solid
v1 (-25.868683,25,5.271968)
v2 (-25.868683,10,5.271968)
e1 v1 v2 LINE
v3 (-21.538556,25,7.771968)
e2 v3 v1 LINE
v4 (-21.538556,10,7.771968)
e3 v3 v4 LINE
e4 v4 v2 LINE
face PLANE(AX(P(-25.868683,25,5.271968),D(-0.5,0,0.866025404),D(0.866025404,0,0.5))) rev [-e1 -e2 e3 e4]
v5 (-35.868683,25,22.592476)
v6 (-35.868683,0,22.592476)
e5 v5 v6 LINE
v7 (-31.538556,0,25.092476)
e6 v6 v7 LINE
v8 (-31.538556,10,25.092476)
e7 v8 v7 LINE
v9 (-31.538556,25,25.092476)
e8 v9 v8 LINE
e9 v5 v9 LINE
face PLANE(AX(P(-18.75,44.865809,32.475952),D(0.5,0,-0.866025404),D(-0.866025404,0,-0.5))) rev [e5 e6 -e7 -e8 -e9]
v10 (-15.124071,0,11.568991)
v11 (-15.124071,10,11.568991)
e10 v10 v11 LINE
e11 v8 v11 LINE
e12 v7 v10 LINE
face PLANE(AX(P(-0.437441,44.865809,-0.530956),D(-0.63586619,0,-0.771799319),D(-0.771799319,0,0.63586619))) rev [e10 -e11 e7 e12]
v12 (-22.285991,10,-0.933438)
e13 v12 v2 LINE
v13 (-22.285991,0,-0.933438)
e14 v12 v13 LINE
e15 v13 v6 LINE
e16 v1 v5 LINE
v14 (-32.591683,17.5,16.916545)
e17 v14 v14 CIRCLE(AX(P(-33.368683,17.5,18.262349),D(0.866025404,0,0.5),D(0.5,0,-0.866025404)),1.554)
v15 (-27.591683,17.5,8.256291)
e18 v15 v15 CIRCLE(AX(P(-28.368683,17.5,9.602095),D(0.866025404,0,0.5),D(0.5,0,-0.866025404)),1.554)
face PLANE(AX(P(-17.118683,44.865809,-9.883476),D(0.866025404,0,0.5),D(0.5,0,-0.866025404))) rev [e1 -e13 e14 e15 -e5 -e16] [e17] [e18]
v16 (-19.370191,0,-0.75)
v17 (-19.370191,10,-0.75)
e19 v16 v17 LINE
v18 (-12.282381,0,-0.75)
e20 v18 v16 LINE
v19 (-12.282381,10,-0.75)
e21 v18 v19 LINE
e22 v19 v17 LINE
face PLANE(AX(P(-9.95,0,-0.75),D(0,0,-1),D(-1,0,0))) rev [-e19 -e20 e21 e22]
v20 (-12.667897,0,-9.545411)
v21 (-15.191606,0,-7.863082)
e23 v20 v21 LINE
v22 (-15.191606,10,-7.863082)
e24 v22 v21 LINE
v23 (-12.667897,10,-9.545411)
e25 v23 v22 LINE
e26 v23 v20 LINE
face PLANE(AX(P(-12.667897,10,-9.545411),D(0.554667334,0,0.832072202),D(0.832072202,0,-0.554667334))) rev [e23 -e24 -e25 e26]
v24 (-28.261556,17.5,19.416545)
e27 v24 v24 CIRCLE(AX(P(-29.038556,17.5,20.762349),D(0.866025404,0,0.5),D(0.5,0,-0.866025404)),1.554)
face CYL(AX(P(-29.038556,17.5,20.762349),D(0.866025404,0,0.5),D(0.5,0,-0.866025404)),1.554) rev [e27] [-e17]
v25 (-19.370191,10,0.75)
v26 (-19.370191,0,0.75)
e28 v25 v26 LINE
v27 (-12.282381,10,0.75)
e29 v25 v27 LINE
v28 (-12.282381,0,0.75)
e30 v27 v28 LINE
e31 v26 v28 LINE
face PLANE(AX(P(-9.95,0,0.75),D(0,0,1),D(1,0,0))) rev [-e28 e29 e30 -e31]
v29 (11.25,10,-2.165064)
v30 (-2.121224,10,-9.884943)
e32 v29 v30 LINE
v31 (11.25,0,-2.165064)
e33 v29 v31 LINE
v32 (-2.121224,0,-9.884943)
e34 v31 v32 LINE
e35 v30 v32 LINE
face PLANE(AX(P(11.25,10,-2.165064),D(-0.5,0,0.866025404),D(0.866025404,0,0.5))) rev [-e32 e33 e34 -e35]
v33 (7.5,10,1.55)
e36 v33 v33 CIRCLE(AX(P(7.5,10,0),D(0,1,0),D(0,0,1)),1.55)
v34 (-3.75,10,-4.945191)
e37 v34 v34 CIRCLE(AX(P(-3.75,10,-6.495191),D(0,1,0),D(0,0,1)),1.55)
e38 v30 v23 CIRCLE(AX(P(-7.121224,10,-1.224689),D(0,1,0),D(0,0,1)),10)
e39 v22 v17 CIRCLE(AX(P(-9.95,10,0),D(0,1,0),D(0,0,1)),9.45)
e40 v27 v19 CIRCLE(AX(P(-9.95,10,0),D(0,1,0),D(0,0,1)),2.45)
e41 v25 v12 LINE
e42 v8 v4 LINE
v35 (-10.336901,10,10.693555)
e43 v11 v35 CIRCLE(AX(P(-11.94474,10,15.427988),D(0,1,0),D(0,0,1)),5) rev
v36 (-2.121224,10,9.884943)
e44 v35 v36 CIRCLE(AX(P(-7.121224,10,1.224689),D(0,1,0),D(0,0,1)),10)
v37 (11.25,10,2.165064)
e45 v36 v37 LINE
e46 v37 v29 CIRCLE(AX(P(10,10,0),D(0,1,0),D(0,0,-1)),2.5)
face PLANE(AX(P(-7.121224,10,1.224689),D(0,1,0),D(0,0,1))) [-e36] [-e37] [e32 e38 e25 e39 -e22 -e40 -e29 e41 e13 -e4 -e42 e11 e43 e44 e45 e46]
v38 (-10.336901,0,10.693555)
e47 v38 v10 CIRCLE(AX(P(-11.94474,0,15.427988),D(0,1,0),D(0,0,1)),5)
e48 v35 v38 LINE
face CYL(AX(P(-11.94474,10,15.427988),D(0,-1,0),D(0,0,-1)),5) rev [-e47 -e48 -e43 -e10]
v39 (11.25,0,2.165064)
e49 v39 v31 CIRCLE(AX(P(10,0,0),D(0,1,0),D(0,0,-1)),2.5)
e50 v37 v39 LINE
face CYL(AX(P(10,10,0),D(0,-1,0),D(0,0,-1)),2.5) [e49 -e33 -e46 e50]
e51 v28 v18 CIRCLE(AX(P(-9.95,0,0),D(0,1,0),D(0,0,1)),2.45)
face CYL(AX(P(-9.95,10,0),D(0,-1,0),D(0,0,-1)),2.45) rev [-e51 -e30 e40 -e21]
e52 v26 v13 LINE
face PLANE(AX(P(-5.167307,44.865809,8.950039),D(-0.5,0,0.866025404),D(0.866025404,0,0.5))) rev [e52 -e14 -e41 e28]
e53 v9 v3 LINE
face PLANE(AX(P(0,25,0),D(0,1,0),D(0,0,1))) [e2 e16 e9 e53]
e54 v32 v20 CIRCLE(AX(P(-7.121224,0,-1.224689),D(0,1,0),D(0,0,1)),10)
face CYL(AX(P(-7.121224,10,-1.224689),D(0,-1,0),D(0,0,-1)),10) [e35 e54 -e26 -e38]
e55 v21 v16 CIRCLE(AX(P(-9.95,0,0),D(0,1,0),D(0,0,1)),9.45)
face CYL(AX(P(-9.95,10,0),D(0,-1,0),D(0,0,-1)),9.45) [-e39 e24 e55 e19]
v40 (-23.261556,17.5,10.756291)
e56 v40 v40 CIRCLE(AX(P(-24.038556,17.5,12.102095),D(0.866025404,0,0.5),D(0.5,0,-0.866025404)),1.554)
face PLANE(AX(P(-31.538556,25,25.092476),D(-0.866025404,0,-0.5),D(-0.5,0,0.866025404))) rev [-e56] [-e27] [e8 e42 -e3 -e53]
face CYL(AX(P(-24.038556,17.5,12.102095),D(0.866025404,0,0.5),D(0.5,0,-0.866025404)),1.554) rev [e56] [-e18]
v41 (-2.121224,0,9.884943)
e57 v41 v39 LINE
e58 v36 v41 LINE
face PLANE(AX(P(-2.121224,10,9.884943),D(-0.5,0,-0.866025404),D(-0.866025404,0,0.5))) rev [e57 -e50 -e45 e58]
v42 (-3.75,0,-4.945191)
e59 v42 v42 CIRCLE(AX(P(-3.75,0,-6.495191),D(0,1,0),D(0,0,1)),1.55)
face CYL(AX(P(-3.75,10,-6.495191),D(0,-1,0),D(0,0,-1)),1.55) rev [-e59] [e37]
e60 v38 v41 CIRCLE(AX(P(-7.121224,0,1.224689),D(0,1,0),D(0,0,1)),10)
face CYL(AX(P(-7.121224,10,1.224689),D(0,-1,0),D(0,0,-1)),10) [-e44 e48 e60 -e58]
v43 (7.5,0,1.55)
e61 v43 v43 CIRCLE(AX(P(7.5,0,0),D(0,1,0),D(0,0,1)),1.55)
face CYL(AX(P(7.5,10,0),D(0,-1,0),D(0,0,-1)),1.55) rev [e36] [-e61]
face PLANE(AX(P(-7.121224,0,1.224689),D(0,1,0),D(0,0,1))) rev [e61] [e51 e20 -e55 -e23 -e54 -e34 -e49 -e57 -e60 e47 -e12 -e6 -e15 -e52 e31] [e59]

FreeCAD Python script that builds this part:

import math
import FreeCAD as App
import Part
import Sketcher

V = App.Vector
Q = App.Units.Quantity


def edges_at(feature, points):
    """Names of the edges that pass closest to the given points."""
    edges = feature.Shape.Edges
    near = lambda p: min(range(len(edges)), key=lambda i: edges[i].distToShape(Part.Vertex(*p))[0])
    return sorted({f"Edge{near(p) + 1}" for p in points})

doc = App.newDocument("Part")
body = doc.addObject("PartDesign::Body", "Body")

sketch1 = body.newObject("Sketcher::SketchObject", "Sketch")
sketch1.AttachmentSupport = (doc.getObject("XZ_Plane"), [""])
sketch1.MapMode = "FlatFace"
sketch1.addGeometry([
    Part.LineSegment(V(11.2, -2.2, 0), V(-2.1, -9.9, 0)),
    Part.ArcOfCircle(Part.Circle(V(-7.1, -1.2, 0), V(0, 0, 1), 10), math.radians(-124), math.radians(-60)),
    Part.LineSegment(V(-12.7, -9.5, 0), V(-15.2, -7.9, 0)),
    Part.ArcOfCircle(Part.Circle(V(-9.9, 0, 0), V(0, 0, 1), 9.4), math.radians(124), math.radians(236)),
    Part.LineSegment(V(-15.2, 7.9, 0), V(-12.7, 9.5, 0)),
    Part.ArcOfCircle(Part.Circle(V(-7.1, 1.2, 0), V(0, 0, 1), 10), math.radians(60), math.radians(124)),
    Part.LineSegment(V(-2.1, 9.9, 0), V(11.2, 2.2, 0)),
    Part.ArcOfCircle(Part.Circle(V(10, 0, 0), V(0, 0, 1), 2.5), math.radians(-60), math.radians(60)),
    Part.Circle(V(-9.9, 0, 0), V(0, 0, 1), 2.5),
    Part.Circle(V(7.5, 0, 0), V(0, 0, 1), 1.6),
    Part.Circle(V(-3.8, -6.5, 0), V(0, 0, 1), 1.6),
], False)
sketch1.addConstraint([
    Sketcher.Constraint("Tangent", 0, 2, 1, 2),
    Sketcher.Constraint("Tangent", 1, 1, 2, 1),
    Sketcher.Constraint("Tangent", 2, 2, 3, 2),
    Sketcher.Constraint("Tangent", 3, 1, 4, 1),
    Sketcher.Constraint("Tangent", 4, 2, 5, 2),
    Sketcher.Constraint("Tangent", 5, 1, 6, 1),
    Sketcher.Constraint("Tangent", 6, 2, 7, 2),
    Sketcher.Constraint("Tangent", 7, 1, 0, 1),
    Sketcher.Constraint("Coincident", 8, 3, 3, 3),
    Sketcher.Constraint("Equal", 1, 5),
    Sketcher.Constraint("Equal", 9, 10),
    Sketcher.Constraint("Symmetric", 1, 3, 5, 3, -1),
    Sketcher.Constraint("PointOnObject", 3, 3, -1),
    Sketcher.Constraint("PointOnObject", 7, 3, -1),
    Sketcher.Constraint("PointOnObject", 9, 3, -1),
    Sketcher.Constraint("Radius", 1, Q("10 mm")),
    Sketcher.Constraint("Diameter", 8, Q("4.9 mm")),
    Sketcher.Constraint("Diameter", 9, Q("3.1 mm")),
    Sketcher.Constraint("Radius", 7, Q("2.5 mm")),
    Sketcher.Constraint("Angle", 0, Q("-150 deg")),
    Sketcher.Constraint("Radius", 3, Q("9.45 mm")),
    Sketcher.Constraint("DistanceX", -1, 1, 7, 3, Q("10 mm")),
    Sketcher.Constraint("DistanceX", 10, 3, 6, 2, Q("15 mm")),
    Sketcher.Constraint("DistanceX", -1, 1, 9, 3, Q("7.5 mm")),
    Sketcher.Constraint("DistanceX", 3, 3, 10, 3, Q("6.2 mm")),
    Sketcher.Constraint("DistanceY", 10, 3, 1, 3, Q("5.270501 mm")),
    Sketcher.Constraint("DistanceY", 1, 3, 4, 2, Q("10.7701 mm")),
])
pad1 = body.newObject("PartDesign::Pad", "Pad")
pad1.Profile = sketch1
pad1.Length = 10
pad1.Reversed = True

sketch2 = body.newObject("Sketcher::SketchObject", "Sketch001")
sketch2.AttachmentSupport = (doc.getObject("XZ_Plane"), [""])
sketch2.MapMode = "FlatFace"
sketch2.AttachmentOffset = App.Placement(V(0, 0, -10), App.Rotation())
sketch2.addGeometry([
    Part.LineSegment(V(-19.4, -0.8, 0), V(-19.4, 0.8, 0)),
    Part.LineSegment(V(-19.4, 0.8, 0), V(-9.9, 0.8, 0)),
    Part.LineSegment(V(-9.9, 0.8, 0), V(-9.9, -0.8, 0)),
    Part.LineSegment(V(-9.9, -0.8, 0), V(-19.4, -0.8, 0)),
], False)
sketch2.addConstraint([
    Sketcher.Constraint("Coincident", 0, 2, 1, 1),
    Sketcher.Constraint("Coincident", 1, 2, 2, 1),
    Sketcher.Constraint("Coincident", 2, 2, 3, 1),
    Sketcher.Constraint("Coincident", 3, 2, 0, 1),
    Sketcher.Constraint("Vertical", 0),
    Sketcher.Constraint("Horizontal", 1),
    Sketcher.Constraint("Vertical", 2),
    Sketcher.Constraint("Horizontal", 3),
    Sketcher.Constraint("DistanceY", 0, 1, 0, 2, Q("1.5 mm")),
    Sketcher.Constraint("DistanceX", 1, 1, 1, 2, Q("9.45 mm")),
    Sketcher.Constraint("DistanceX", 0, 2, -1, 1, Q("19.4 mm")),
    Sketcher.Constraint("DistanceY", -1, 1, 0, 2, Q("0.75 mm")),
])
pocket1 = body.newObject("PartDesign::Pocket", "Pocket")
pocket1.Profile = sketch2
pocket1.Type = "ThroughAll"
pocket1.Reversed = True

sketch3 = body.newObject("Sketcher::SketchObject", "Sketch002")
sketch3.AttachmentSupport = (doc.getObject("XZ_Plane"), [""])
sketch3.MapMode = "FlatFace"
sketch3.addGeometry([
    Part.LineSegment(V(-35.9, 22.6, 0), V(-22.3, -0.9, 0)),
    Part.LineSegment(V(-22.3, -0.9, 0), V(-19.4, 0.8, 0)),
    Part.ArcOfCircle(Part.Circle(V(-9.9, 0, 0), V(0, 0, 1), 9.5), math.radians(124), math.radians(175)),
    Part.LineSegment(V(-15.2, 7.9, 0), V(-12.7, 9.5, 0)),
    Part.LineSegment(V(-12.7, 9.5, 0), V(-31.5, 25.1, 0)),
    Part.LineSegment(V(-31.5, 25.1, 0), V(-35.9, 22.6, 0)),
], False)
sketch3.addConstraint([
    Sketcher.Constraint("Coincident", 0, 2, 1, 1),
    Sketcher.Constraint("Coincident", 1, 2, 2, 2),
    Sketcher.Constraint("Tangent", 2, 1, 3, 1),
    Sketcher.Constraint("Coincident", 3, 2, 4, 1),
    Sketcher.Constraint("Coincident", 4, 2, 5, 1),
    Sketcher.Constraint("Coincident", 5, 2, 0, 1),
    Sketcher.Constraint("PointOnObject", 2, 3, -1),
    Sketcher.Constraint("Perpendicular", 0, 1),
    Sketcher.Constraint("Parallel", 1, 5),
    Sketcher.Constraint("Angle", 0, Q("-60 deg")),
    Sketcher.Constraint("Radius", 2, Q("9.45 mm")),
    Sketcher.Constraint("Distance", 5, Q("5 mm")),
    Sketcher.Constraint("DistanceX", 2, 3, -1, 1, Q("9.95 mm")),
    Sketcher.Constraint("DistanceY", -1, 1, 1, 2, Q("0.75 mm")),
    Sketcher.Constraint("DistanceX", 0, 2, 1, 2, Q("2.9158 mm")),
    Sketcher.Constraint("Distance", 3, Q("3.033041 mm")),
    Sketcher.Constraint("DistanceY", -1, 1, 3, 2, Q("9.545411 mm")),
    Sketcher.Constraint("DistanceX", 4, 2, 2, 1, Q("16.34695 mm")),
])
pad2 = body.newObject("PartDesign::Pad", "Pad001")
pad2.Profile = sketch3
pad2.Length = 10
pad2.Reversed = True

sketch4 = body.newObject("Sketcher::SketchObject", "Sketch003")
sketch4.AttachmentSupport = (doc.getObject("XZ_Plane"), [""])
sketch4.MapMode = "FlatFace"
sketch4.AttachmentOffset = App.Placement(V(0, 0, -10), App.Rotation())
sketch4.addGeometry([
    Part.LineSegment(V(-26, 5, 0), V(-36, 23, 0)),
    Part.LineSegment(V(-36, 23, 0), V(-32, 25, 0)),
    Part.LineSegment(V(-32, 25, 0), V(-22, 8, 0)),
    Part.LineSegment(V(-22, 8, 0), V(-26, 5, 0)),
], False)
sketch4.addConstraint([
    Sketcher.Constraint("Coincident", 0, 2, 1, 1),
    Sketcher.Constraint("Coincident", 1, 2, 2, 1),
    Sketcher.Constraint("Coincident", 2, 2, 3, 1),
    Sketcher.Constraint("Coincident", 3, 2, 0, 1),
    Sketcher.Constraint("Perpendicular", 0, 1),
    Sketcher.Constraint("Perpendicular", 1, 2),
    Sketcher.Constraint("Perpendicular", 2, 3),
    Sketcher.Constraint("Angle", 0, Q("120 deg")),
    Sketcher.Constraint("Distance", 0, Q("20 mm")),
    Sketcher.Constraint("Distance", 1, Q("5 mm")),
    Sketcher.Constraint("DistanceX", 0, 2, -1, 1, Q("35.868683 mm")),
    Sketcher.Constraint("DistanceY", -1, 1, 0, 2, Q("22.592476 mm")),
])
pad3 = body.newObject("PartDesign::Pad", "Pad002")
pad3.Profile = sketch4
pad3.Length = 15
pad3.Reversed = True

sketch5 = body.newObject("Sketcher::SketchObject", "Sketch004")
sketch5.Placement = App.Placement(V(-12.788556, 0, -7.383476), App.Rotation(V(0.5, 0, -0.866025404), V(0, 1, 0), V(0.866025404, 0, 0.5), "ZXY"))
sketch5.addGeometry([
    Part.Circle(V(-32.5, 17.5, 0), V(0, 0, 1), 1.6),
    Part.Circle(V(-22.5, 17.5, 0), V(0, 0, 1), 1.6),
], False)
sketch5.addConstraint([
    Sketcher.Constraint("Equal", 0, 1),
    Sketcher.Constraint("Horizontal", 0, 3, 1, 3),
    Sketcher.Constraint("Diameter", 0, Q("3.108 mm")),
    Sketcher.Constraint("DistanceX", 0, 3, 1, 3, Q("10 mm")),
    Sketcher.Constraint("DistanceX", 0, 3, -1, 1, Q("32.5 mm")),
    Sketcher.Constraint("DistanceY", -1, 1, 0, 3, Q("17.5 mm")),
])
doc.recompute()
hole = body.newObject("PartDesign::Hole", "Hole")
hole.Profile = sketch5
hole.ThreadType = "None"
hole.Diameter = 3.108
hole.DepthType = "ThroughAll"
doc.recompute()

fillet = body.newObject("PartDesign::Fillet", "Fillet")
fillet.Base = (hole, edges_at(hole, [(-12.668, 5, 9.545)]))
fillet.Radius = 5

doc.recompute()
